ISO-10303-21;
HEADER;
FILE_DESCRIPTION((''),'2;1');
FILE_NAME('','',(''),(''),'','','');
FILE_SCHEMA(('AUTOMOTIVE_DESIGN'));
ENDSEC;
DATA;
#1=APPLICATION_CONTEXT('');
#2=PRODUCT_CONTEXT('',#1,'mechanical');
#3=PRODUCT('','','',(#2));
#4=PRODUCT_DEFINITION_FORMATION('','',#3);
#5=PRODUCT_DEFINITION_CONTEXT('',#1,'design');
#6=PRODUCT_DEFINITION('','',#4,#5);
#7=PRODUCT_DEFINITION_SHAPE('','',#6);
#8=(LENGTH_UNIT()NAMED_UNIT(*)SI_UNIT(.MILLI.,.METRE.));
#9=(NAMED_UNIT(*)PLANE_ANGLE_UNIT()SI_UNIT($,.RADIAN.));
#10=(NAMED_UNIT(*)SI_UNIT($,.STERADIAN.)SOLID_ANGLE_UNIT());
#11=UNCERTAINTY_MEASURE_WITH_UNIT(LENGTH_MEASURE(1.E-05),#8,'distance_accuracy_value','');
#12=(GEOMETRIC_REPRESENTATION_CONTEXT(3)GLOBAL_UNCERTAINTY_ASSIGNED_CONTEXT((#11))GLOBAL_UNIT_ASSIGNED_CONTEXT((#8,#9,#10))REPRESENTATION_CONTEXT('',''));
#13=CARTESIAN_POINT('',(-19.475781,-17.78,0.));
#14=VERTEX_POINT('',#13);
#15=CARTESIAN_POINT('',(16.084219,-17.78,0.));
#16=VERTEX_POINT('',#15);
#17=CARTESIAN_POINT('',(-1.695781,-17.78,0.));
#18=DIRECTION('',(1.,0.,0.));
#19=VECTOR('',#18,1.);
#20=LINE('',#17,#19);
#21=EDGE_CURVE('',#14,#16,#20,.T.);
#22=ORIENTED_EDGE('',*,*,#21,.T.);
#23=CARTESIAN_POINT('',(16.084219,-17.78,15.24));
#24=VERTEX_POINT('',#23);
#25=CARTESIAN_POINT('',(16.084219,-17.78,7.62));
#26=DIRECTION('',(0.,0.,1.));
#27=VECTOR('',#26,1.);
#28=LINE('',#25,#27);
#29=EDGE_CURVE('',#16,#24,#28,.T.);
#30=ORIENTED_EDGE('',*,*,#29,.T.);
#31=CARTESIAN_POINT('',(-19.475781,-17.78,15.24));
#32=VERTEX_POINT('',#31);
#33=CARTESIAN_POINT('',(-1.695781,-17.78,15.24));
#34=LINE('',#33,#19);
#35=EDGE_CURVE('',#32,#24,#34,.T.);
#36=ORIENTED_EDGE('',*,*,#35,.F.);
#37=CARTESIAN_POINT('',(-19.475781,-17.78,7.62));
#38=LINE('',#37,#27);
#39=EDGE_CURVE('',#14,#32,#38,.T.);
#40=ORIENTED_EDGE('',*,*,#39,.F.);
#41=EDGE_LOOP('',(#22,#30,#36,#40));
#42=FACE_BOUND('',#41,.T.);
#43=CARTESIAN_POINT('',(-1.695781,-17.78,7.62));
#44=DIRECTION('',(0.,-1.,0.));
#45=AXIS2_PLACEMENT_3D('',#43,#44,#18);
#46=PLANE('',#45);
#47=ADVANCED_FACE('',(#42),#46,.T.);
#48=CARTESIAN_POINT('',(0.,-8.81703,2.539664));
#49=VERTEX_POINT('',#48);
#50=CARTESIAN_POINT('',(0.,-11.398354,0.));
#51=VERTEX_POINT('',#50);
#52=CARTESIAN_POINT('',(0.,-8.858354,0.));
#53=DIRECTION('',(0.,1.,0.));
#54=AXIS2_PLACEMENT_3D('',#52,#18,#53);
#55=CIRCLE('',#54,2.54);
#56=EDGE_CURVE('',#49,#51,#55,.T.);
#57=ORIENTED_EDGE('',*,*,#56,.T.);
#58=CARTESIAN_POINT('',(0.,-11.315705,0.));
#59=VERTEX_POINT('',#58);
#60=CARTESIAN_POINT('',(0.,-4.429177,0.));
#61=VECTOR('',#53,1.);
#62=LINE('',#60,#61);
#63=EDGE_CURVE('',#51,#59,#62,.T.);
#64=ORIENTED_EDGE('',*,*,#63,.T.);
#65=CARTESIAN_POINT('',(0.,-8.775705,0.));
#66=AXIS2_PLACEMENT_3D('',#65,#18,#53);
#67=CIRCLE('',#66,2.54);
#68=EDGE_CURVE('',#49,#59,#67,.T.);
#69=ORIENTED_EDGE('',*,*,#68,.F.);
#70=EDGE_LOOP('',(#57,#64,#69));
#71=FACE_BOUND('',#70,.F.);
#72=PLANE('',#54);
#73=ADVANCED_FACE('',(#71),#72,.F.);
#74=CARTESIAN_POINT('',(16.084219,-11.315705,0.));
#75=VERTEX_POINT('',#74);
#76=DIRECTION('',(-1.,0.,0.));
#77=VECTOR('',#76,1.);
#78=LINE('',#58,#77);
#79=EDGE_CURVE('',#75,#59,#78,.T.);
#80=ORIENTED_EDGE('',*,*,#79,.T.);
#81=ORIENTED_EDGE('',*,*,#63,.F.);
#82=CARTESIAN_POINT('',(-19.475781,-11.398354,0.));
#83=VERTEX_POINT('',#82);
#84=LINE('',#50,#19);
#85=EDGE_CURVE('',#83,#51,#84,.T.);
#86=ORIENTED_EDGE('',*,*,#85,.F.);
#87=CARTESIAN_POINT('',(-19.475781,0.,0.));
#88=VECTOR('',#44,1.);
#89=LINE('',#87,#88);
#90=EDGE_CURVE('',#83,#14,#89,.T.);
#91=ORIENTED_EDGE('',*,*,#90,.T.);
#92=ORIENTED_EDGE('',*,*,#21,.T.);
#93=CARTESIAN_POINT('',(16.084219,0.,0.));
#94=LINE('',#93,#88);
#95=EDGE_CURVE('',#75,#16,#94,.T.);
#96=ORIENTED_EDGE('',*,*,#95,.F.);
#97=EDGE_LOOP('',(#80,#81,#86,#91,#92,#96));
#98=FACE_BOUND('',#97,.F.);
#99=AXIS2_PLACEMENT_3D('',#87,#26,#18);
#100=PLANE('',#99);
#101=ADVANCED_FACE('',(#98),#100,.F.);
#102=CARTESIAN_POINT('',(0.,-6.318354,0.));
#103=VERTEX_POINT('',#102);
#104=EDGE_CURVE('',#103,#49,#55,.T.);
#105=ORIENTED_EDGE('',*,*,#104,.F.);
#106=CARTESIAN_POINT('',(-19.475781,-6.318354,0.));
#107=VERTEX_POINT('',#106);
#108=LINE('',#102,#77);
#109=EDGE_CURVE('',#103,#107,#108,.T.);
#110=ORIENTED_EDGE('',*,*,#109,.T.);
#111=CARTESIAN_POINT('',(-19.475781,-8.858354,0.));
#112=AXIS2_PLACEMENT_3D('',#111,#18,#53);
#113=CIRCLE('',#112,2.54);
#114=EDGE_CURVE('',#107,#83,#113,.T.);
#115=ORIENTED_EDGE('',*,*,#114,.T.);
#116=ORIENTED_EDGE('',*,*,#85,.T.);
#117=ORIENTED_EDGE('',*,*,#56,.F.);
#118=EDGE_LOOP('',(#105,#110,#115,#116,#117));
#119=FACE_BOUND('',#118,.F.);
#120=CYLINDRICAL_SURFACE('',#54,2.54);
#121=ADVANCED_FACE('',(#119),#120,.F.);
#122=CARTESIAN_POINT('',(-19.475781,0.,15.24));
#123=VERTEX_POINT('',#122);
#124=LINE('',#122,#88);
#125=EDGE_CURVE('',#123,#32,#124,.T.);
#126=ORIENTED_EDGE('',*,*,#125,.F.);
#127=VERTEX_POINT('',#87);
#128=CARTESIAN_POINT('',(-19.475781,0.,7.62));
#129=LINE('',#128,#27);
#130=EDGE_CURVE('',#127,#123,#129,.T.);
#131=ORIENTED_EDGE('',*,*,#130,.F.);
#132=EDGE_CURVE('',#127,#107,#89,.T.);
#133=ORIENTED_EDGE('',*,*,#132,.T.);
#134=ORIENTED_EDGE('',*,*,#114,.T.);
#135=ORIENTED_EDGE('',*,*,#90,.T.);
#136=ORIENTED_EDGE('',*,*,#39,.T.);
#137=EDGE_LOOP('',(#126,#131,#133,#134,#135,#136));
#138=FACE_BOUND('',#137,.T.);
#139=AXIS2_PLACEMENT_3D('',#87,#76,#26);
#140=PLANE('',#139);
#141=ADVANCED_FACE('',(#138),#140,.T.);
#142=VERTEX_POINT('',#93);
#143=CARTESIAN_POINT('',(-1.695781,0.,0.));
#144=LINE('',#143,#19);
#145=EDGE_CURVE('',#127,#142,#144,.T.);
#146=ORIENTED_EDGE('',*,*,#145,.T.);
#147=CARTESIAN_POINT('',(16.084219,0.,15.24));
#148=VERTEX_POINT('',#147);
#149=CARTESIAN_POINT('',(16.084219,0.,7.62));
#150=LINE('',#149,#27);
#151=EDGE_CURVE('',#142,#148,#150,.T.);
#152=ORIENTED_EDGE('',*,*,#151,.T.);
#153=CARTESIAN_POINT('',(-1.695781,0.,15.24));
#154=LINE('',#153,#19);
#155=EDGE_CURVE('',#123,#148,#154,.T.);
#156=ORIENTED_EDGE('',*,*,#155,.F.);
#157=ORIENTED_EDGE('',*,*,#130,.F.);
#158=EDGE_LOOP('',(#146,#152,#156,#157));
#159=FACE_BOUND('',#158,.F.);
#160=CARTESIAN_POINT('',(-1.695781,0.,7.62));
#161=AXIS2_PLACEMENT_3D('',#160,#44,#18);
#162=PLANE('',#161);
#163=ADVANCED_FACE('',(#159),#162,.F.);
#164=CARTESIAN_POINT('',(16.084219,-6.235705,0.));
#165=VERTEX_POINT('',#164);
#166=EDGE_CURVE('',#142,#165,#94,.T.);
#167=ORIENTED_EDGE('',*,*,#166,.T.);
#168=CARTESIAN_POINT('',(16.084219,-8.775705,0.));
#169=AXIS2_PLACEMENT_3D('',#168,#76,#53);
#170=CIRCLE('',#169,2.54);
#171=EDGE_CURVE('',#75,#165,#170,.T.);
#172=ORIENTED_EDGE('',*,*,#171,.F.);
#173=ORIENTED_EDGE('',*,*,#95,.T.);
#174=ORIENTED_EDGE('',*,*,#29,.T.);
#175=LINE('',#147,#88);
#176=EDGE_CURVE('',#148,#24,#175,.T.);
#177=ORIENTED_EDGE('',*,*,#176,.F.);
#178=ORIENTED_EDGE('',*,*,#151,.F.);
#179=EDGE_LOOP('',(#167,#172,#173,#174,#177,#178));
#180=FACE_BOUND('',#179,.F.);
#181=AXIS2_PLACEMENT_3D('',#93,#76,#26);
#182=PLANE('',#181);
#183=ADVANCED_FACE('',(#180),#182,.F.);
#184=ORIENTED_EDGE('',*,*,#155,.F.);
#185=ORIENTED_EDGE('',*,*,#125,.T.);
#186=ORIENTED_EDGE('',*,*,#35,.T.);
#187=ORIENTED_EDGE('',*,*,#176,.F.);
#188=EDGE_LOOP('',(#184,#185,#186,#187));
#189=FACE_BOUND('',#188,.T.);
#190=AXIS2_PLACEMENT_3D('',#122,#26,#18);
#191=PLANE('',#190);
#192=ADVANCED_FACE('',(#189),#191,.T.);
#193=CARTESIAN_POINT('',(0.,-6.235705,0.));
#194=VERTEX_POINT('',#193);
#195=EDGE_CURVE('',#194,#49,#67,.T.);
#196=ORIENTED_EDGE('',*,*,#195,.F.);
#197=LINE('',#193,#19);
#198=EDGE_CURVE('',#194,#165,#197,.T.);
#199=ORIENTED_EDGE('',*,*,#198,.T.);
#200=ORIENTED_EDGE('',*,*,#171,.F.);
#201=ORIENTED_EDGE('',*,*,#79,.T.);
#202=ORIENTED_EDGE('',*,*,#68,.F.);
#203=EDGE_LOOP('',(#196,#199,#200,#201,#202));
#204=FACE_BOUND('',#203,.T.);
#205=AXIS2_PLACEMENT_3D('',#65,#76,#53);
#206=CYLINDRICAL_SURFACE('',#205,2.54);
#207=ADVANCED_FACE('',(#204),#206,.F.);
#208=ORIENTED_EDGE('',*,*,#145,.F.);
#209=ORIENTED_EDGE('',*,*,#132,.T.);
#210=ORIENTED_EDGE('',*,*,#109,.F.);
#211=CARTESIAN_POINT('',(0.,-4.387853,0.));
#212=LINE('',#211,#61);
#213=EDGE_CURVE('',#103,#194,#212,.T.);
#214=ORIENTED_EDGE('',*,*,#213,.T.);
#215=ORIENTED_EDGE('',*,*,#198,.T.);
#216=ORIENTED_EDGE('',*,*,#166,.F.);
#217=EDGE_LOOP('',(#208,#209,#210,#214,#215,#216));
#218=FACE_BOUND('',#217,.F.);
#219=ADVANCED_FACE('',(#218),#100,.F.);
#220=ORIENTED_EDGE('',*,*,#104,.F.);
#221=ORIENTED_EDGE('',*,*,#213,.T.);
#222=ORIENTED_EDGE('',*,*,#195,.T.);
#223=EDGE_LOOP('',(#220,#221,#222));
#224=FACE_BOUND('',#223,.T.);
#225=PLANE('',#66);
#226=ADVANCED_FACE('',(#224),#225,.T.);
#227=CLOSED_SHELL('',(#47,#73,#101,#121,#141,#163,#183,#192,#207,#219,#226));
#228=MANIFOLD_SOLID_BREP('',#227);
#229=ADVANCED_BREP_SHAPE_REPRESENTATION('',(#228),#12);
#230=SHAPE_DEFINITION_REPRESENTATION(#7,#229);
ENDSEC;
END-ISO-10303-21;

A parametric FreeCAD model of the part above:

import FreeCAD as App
import Part
import Sketcher
Q = App.Units.Quantity

doc = App.newDocument("Part")
params = doc.addObject("Spreadsheet::Sheet", "Params")
for row, (alias, value) in enumerate([
    ("sketch1_width", "1.4 in"),
    ("sketch1_height", "0.6 in"),
    ("pad1_length", "0.7 in"),
    ("sketch2_diameter", "0.2 in"),
    ("pocket1_length", "1 in"),
    ("sketch3_diameter", "0.2 in"),
    ("pocket2_length", "1 in"),
], start=1):
    params.set(f"A{row}", alias)
    params.set(f"B{row}", "=" + value)
    params.setAlias(f"B{row}", alias)

body = doc.addObject("PartDesign::Body", "Body")

# Sketch on XZ plane
sketch1 = body.newObject("Sketcher::SketchObject", "Sketch")
sketch1.AttachmentSupport = (doc.getObject("XZ_Plane"), [""])
sketch1.MapMode = "FlatFace"
sketch1.addGeometry(Part.LineSegment(App.Vector(-19.475781, 15.24, 0), App.Vector(-19.475781, 0, 0)), False)
sketch1.addGeometry(Part.LineSegment(App.Vector(-19.475781, 0, 0), App.Vector(16.084219, 0, 0)), False)
sketch1.addGeometry(Part.LineSegment(App.Vector(16.084219, 0, 0), App.Vector(16.084219, 15.24, 0)), False)
sketch1.addGeometry(Part.LineSegment(App.Vector(16.084219, 15.24, 0), App.Vector(-19.475781, 15.24, 0)), False)
sketch1.addConstraint(Sketcher.Constraint("Coincident", 0, 2, 1, 1))
sketch1.addConstraint(Sketcher.Constraint("Coincident", 1, 2, 2, 1))
sketch1.addConstraint(Sketcher.Constraint("Coincident", 2, 2, 3, 1))
sketch1.addConstraint(Sketcher.Constraint("Coincident", 3, 2, 0, 1))
sketch1.addConstraint(Sketcher.Constraint("Vertical", 0))
sketch1.addConstraint(Sketcher.Constraint("Horizontal", 1))
sketch1.addConstraint(Sketcher.Constraint("Vertical", 2))
sketch1.addConstraint(Sketcher.Constraint("Horizontal", 3))
sketch1.addConstraint(Sketcher.Constraint("PointOnObject", 0, 2, -1))
sketch1.addConstraint(Sketcher.Constraint("DistanceX", 1, 1, 1, 2, Q("1.4 in")))
sketch1.addConstraint(Sketcher.Constraint("DistanceY", 0, 2, 0, 1, Q("0.6 in")))
sketch1.addConstraint(Sketcher.Constraint("DistanceX", 0, 2, -1, 1, 19.475781))
sketch1.setExpression("Constraints[9]", "Params.sketch1_width")
sketch1.setExpression("Constraints[10]", "Params.sketch1_height")
pad1 = body.newObject("PartDesign::Pad", "Pad")
pad1.Profile = sketch1
pad1.setExpression("Length", "Params.pad1_length")

# Sketch on YZ plane
sketch2 = body.newObject("Sketcher::SketchObject", "Sketch001")
sketch2.AttachmentSupport = (doc.getObject("YZ_Plane"), [""])
sketch2.MapMode = "FlatFace"
sketch2.addGeometry(Part.Circle(App.Vector(-8.775705, 0, 0), App.Vector(0, 0, 1), 2.54), False)
sketch2.addConstraint(Sketcher.Constraint("PointOnObject", 0, 3, -1))
sketch2.addConstraint(Sketcher.Constraint("Diameter", 0, Q("0.2 in")))
sketch2.addConstraint(Sketcher.Constraint("DistanceX", 0, 3, -1, 1, Q("0.3455002 in")))
sketch2.setExpression("Constraints[1]", "Params.sketch2_diameter")
pocket1 = body.newObject("PartDesign::Pocket", "Pocket")
pocket1.Profile = sketch2
pocket1.setExpression("Length", "Params.pocket1_length")
pocket1.Reversed = True

# Sketch on YZ plane
sketch3 = body.newObject("Sketcher::SketchObject", "Sketch002")
sketch3.AttachmentSupport = (doc.getObject("YZ_Plane"), [""])
sketch3.MapMode = "FlatFace"
sketch3.addGeometry(Part.Circle(App.Vector(-8.858354, 0, 0), App.Vector(0, 0, 1), 2.54), False)
sketch3.addConstraint(Sketcher.Constraint("PointOnObject", 0, 3, -1))
sketch3.addConstraint(Sketcher.Constraint("Diameter", 0, Q("0.2 in")))
sketch3.addConstraint(Sketcher.Constraint("DistanceX", 0, 3, -1, 1, 8.858354))
sketch3.setExpression("Constraints[1]", "Params.sketch3_diameter")
pocket2 = body.newObject("PartDesign::Pocket", "Pocket001")
pocket2.Profile = sketch3
pocket2.setExpression("Length", "Params.pocket2_length")

doc.recompute()
